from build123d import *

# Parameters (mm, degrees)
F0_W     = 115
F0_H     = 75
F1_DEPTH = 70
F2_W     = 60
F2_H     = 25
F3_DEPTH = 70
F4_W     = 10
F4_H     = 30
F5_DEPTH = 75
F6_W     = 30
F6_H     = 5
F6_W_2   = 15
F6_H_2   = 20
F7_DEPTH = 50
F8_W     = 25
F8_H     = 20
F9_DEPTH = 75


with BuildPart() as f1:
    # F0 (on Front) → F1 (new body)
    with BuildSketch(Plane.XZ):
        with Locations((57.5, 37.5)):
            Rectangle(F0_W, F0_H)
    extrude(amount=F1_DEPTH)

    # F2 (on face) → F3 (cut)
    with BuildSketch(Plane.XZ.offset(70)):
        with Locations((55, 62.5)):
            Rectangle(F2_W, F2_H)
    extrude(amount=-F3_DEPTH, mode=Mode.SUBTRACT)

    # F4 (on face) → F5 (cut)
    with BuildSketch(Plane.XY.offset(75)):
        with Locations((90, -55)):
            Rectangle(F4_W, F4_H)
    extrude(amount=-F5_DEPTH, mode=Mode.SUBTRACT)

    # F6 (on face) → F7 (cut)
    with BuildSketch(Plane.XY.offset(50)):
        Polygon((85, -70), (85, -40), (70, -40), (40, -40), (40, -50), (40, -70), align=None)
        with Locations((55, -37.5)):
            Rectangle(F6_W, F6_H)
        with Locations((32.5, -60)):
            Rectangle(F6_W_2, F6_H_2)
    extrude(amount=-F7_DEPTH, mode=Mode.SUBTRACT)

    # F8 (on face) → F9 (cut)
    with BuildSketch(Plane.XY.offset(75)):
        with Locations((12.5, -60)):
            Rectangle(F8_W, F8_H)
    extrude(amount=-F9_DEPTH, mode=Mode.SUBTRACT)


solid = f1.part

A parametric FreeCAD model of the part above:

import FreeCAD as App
import Part
import Sketcher

V = App.Vector
Q = App.Units.Quantity

doc = App.newDocument("Part")
body = doc.addObject("PartDesign::Body", "Body")

sketch1 = body.newObject("Sketcher::SketchObject", "Sketch")
sketch1.AttachmentSupport = (doc.getObject("XZ_Plane"), [""])
sketch1.MapMode = "FlatFace"
sketch1.addGeometry([
    Part.LineSegment(V(0, 75, 0), V(0, 0, 0)),
    Part.LineSegment(V(0, 0, 0), V(115, 0, 0)),
    Part.LineSegment(V(115, 0, 0), V(115, 75, 0)),
    Part.LineSegment(V(115, 75, 0), V(0, 75, 0)),
], False)
sketch1.addConstraint([
    Sketcher.Constraint("Coincident", 0, 2, 1, 1),
    Sketcher.Constraint("Coincident", 1, 2, 2, 1),
    Sketcher.Constraint("Coincident", 2, 2, 3, 1),
    Sketcher.Constraint("Coincident", 3, 2, 0, 1),
    Sketcher.Constraint("Vertical", 0),
    Sketcher.Constraint("Horizontal", 1),
    Sketcher.Constraint("Vertical", 2),
    Sketcher.Constraint("Horizontal", 3),
    Sketcher.Constraint("Coincident", 0, 2, -1, 1),
    Sketcher.Constraint("DistanceX", 1, 1, 1, 2, Q("115 mm")),
    Sketcher.Constraint("DistanceY", 0, 2, 0, 1, Q("75 mm")),
])
pad1 = body.newObject("PartDesign::Pad", "Pad")
pad1.Profile = sketch1
pad1.Length = 70

sketch2 = body.newObject("Sketcher::SketchObject", "Sketch001")
sketch2.AttachmentSupport = (doc.getObject("XZ_Plane"), [""])
sketch2.MapMode = "FlatFace"
sketch2.AttachmentOffset = App.Placement(V(0, 0, 70), App.Rotation())
sketch2.addGeometry([
    Part.LineSegment(V(25, 75, 0), V(25, 50, 0)),
    Part.LineSegment(V(25, 50, 0), V(85, 50, 0)),
    Part.LineSegment(V(85, 50, 0), V(85, 75, 0)),
    Part.LineSegment(V(85, 75, 0), V(25, 75, 0)),
], False)
sketch2.addConstraint([
    Sketcher.Constraint("Coincident", 0, 2, 1, 1),
    Sketcher.Constraint("Coincident", 1, 2, 2, 1),
    Sketcher.Constraint("Coincident", 2, 2, 3, 1),
    Sketcher.Constraint("Coincident", 3, 2, 0, 1),
    Sketcher.Constraint("Vertical", 0),
    Sketcher.Constraint("Horizontal", 1),
    Sketcher.Constraint("Vertical", 2),
    Sketcher.Constraint("Horizontal", 3),
    Sketcher.Constraint("DistanceX", 1, 1, 1, 2, Q("60 mm")),
    Sketcher.Constraint("DistanceY", 0, 2, 0, 1, Q("25 mm")),
    Sketcher.Constraint("DistanceX", -1, 1, 0, 2, Q("25 mm")),
    Sketcher.Constraint("DistanceY", -1, 1, 0, 2, Q("50 mm")),
])
pocket1 = body.newObject("PartDesign::Pocket", "Pocket")
pocket1.Profile = sketch2
pocket1.Length = 70

sketch3 = body.newObject("Sketcher::SketchObject", "Sketch002")
sketch3.AttachmentSupport = (doc.getObject("XY_Plane"), [""])
sketch3.MapMode = "FlatFace"
sketch3.AttachmentOffset = App.Placement(V(0, 0, 75), App.Rotation())
sketch3.addGeometry([
    Part.LineSegment(V(85, -40, 0), V(85, -70, 0)),
    Part.LineSegment(V(85, -70, 0), V(95, -70, 0)),
    Part.LineSegment(V(95, -70, 0), V(95, -40, 0)),
    Part.LineSegment(V(95, -40, 0), V(85, -40, 0)),
], False)
sketch3.addConstraint([
    Sketcher.Constraint("Coincident", 0, 2, 1, 1),
    Sketcher.Constraint("Coincident", 1, 2, 2, 1),
    Sketcher.Constraint("Coincident", 2, 2, 3, 1),
    Sketcher.Constraint("Coincident", 3, 2, 0, 1),
    Sketcher.Constraint("Vertical", 0),
    Sketcher.Constraint("Horizontal", 1),
    Sketcher.Constraint("Vertical", 2),
    Sketcher.Constraint("Horizontal", 3),
    Sketcher.Constraint("DistanceX", 1, 1, 1, 2, Q("10 mm")),
    Sketcher.Constraint("DistanceY", 0, 2, 0, 1, Q("30 mm")),
    Sketcher.Constraint("DistanceX", -1, 1, 0, 2, Q("85 mm")),
    Sketcher.Constraint("DistanceY", 0, 2, -1, 1, Q("70 mm")),
])
pocket2 = body.newObject("PartDesign::Pocket", "Pocket001")
pocket2.Profile = sketch3
pocket2.Length = 75

sketch4 = body.newObject("Sketcher::SketchObject", "Sketch003")
sketch4.AttachmentSupport = (doc.getObject("XY_Plane"), [""])
sketch4.MapMode = "FlatFace"
sketch4.AttachmentOffset = App.Placement(V(0, 0, 50), App.Rotation())
sketch4.addGeometry([
    Part.LineSegment(V(85, -70, 0), V(85, -40, 0)),
    Part.LineSegment(V(85, -40, 0), V(70, -40, 0)),
    Part.LineSegment(V(70, -40, 0), V(70, -35, 0)),
    Part.LineSegment(V(70, -35, 0), V(40, -35, 0)),
    Part.LineSegment(V(40, -35, 0), V(40, -50, 0)),
    Part.LineSegment(V(40, -50, 0), V(25, -50, 0)),
    Part.LineSegment(V(25, -50, 0), V(25, -70, 0)),
    Part.LineSegment(V(25, -70, 0), V(85, -70, 0)),
], False)
sketch4.addConstraint([
    Sketcher.Constraint("Coincident", 0, 2, 1, 1),
    Sketcher.Constraint("Coincident", 1, 2, 2, 1),
    Sketcher.Constraint("Coincident", 2, 2, 3, 1),
    Sketcher.Constraint("Coincident", 3, 2, 4, 1),
    Sketcher.Constraint("Coincident", 4, 2, 5, 1),
    Sketcher.Constraint("Coincident", 5, 2, 6, 1),
    Sketcher.Constraint("Coincident", 6, 2, 7, 1),
    Sketcher.Constraint("Coincident", 7, 2, 0, 1),
    Sketcher.Constraint("Vertical", 0),
    Sketcher.Constraint("Horizontal", 1),
    Sketcher.Constraint("Vertical", 2),
    Sketcher.Constraint("Horizontal", 3),
    Sketcher.Constraint("Vertical", 4),
    Sketcher.Constraint("Horizontal", 5),
    Sketcher.Constraint("Vertical", 6),
    Sketcher.Constraint("Horizontal", 7),
    Sketcher.Constraint("Equal", 1, 5),
    Sketcher.Constraint("Equal", 3, 0),
    Sketcher.Constraint("Equal", 5, 4),
    Sketcher.Constraint("DistanceX", 1, 2, 1, 1, Q("15 mm")),
    Sketcher.Constraint("DistanceX", 3, 2, 3, 1, Q("30 mm")),
    Sketcher.Constraint("DistanceY", 2, 1, 2, 2, Q("5 mm")),
    Sketcher.Constraint("DistanceX", -1, 1, 0, 2, Q("85 mm")),
    Sketcher.Constraint("DistanceY", 0, 2, -1, 1, Q("40 mm")),
])
pocket3 = body.newObject("PartDesign::Pocket", "Pocket002")
pocket3.Profile = sketch4
pocket3.Length = 50

sketch5 = body.newObject("Sketcher::SketchObject", "Sketch004")
sketch5.AttachmentSupport = (doc.getObject("XY_Plane"), [""])
sketch5.MapMode = "FlatFace"
sketch5.AttachmentOffset = App.Placement(V(0, 0, 75), App.Rotation())
sketch5.addGeometry([
    Part.LineSegment(V(0, -50, 0), V(0, -70, 0)),
    Part.LineSegment(V(0, -70, 0), V(25, -70, 0)),
    Part.LineSegment(V(25, -70, 0), V(25, -50, 0)),
    Part.LineSegment(V(25, -50, 0), V(0, -50, 0)),
], False)
sketch5.addConstraint([
    Sketcher.Constraint("Coincident", 0, 2, 1, 1),
    Sketcher.Constraint("Coincident", 1, 2, 2, 1),
    Sketcher.Constraint("Coincident", 2, 2, 3, 1),
    Sketcher.Constraint("Coincident", 3, 2, 0, 1),
    Sketcher.Constraint("Vertical", 0),
    Sketcher.Constraint("Horizontal", 1),
    Sketcher.Constraint("Vertical", 2),
    Sketcher.Constraint("Horizontal", 3),
    Sketcher.Constraint("PointOnObject", 0, 2, -2),
    Sketcher.Constraint("DistanceX", 1, 1, 1, 2, Q("25 mm")),
    Sketcher.Constraint("DistanceY", 0, 2, 0, 1, Q("20 mm")),
    Sketcher.Constraint("DistanceY", 0, 2, -1, 1, Q("70 mm")),
])
pocket4 = body.newObject("PartDesign::Pocket", "Pocket003")
pocket4.Profile = sketch5
pocket4.Length = 75

doc.recompute()
